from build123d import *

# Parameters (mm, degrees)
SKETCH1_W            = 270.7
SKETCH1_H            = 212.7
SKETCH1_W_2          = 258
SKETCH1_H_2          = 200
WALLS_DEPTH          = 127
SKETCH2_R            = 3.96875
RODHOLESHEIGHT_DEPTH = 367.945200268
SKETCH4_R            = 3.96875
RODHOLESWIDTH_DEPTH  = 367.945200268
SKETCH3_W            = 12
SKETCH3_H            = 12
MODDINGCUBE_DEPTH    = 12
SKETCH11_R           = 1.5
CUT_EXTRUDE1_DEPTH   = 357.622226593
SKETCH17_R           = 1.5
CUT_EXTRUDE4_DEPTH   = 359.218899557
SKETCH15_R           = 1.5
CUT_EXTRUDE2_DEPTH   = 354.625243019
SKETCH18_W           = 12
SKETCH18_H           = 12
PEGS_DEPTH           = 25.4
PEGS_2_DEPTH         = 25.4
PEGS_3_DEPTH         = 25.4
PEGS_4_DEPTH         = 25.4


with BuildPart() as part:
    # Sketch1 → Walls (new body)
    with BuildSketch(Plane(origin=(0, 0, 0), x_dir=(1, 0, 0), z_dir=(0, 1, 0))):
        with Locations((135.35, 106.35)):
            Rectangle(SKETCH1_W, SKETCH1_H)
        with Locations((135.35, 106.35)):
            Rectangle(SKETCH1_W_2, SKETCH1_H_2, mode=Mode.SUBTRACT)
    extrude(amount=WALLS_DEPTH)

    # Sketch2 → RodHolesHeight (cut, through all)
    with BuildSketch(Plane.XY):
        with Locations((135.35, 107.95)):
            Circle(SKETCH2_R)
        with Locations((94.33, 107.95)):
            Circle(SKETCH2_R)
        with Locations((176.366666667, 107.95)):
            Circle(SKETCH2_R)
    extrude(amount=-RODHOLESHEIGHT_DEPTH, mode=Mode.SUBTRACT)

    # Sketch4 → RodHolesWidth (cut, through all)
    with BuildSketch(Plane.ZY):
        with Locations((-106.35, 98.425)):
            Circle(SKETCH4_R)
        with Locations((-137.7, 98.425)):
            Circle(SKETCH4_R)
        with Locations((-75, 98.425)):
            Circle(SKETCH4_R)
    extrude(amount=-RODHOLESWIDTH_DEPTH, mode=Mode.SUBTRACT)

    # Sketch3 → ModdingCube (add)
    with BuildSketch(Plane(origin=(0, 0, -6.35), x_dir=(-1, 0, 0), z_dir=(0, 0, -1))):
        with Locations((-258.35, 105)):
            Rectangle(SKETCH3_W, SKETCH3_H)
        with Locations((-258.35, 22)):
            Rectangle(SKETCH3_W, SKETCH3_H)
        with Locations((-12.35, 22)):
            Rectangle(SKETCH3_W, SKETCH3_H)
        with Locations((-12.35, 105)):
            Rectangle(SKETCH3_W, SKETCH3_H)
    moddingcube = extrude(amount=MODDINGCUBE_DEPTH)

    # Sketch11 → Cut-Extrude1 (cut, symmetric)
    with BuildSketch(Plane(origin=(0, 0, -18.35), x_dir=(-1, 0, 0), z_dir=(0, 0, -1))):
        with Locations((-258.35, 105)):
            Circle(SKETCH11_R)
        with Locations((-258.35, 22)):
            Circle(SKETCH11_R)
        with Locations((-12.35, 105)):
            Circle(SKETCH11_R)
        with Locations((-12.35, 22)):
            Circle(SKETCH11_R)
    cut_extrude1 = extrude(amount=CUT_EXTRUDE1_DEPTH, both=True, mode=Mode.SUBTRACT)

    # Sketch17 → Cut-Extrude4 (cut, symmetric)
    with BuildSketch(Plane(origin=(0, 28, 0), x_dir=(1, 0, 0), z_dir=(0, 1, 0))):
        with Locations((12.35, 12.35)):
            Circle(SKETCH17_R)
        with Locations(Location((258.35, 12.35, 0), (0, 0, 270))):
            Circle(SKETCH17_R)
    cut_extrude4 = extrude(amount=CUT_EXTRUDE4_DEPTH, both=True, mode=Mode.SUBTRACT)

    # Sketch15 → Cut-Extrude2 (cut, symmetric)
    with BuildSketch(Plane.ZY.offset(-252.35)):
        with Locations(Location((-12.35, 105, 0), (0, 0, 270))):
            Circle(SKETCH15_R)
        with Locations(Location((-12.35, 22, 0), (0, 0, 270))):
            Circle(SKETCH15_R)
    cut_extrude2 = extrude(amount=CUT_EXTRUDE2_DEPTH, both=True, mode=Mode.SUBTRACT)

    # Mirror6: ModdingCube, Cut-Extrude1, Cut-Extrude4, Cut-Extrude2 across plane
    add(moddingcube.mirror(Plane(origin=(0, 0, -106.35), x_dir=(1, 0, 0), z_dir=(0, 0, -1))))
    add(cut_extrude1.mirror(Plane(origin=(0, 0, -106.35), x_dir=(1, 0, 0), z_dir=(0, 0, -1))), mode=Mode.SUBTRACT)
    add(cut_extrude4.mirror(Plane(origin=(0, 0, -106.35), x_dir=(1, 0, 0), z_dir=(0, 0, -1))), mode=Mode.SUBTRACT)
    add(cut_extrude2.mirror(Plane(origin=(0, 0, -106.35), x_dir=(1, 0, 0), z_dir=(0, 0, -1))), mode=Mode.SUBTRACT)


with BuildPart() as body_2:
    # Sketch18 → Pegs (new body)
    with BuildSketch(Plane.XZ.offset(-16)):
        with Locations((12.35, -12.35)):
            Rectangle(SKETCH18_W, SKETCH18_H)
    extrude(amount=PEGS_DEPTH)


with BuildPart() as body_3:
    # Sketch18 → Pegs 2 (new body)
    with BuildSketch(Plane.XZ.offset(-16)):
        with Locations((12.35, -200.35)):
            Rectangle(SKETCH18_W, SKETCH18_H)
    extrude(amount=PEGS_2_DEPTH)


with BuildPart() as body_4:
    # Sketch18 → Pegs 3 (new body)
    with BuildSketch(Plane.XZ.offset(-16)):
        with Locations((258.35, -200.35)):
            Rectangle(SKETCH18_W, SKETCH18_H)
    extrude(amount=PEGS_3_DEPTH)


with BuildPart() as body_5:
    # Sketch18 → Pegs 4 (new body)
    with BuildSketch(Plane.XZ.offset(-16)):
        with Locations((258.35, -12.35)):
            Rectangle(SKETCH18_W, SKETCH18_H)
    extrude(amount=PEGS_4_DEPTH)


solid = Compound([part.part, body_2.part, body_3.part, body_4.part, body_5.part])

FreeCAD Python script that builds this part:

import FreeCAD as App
import Part
import Sketcher
from FreeCAD import Vector


def add_polygon(sketch, points):
    """Adds a closed chain of lines whose ends are joined by coincident constraints."""
    first, n = sketch.GeometryCount, len(points)
    for a, b in zip(points, points[1:] + points[:1]):
        sketch.addGeometry(Part.LineSegment(App.Vector(*a, 0), App.Vector(*b, 0)), False)
    for i in range(n):
        sketch.addConstraint(Sketcher.Constraint("Coincident", first + i, 2, first + (i + 1) % n, 1))

doc = App.newDocument("Part")
body = doc.addObject("PartDesign::Body", "Body")

sketch1 = doc.addObject("Sketcher::SketchObject", "Sketch")
body.addObject(sketch1)
sketch1.AttachmentSupport = (doc.XZ_Plane, [""])
sketch1.MapMode = "FlatFace"
add_polygon(sketch1, [(0, -213), (0, 0), (271, 0), (271, -213)])
add_polygon(sketch1, [(264, -6), (6, -6), (6, -206), (264, -206)])
sketch1.addConstraint(Sketcher.Constraint("Vertical", 0))
sketch1.addConstraint(Sketcher.Constraint("Horizontal", 1))
sketch1.addConstraint(Sketcher.Constraint("Vertical", 2))
sketch1.addConstraint(Sketcher.Constraint("Horizontal", 3))
sketch1.addConstraint(Sketcher.Constraint("Horizontal", 4))
sketch1.addConstraint(Sketcher.Constraint("Vertical", 5))
sketch1.addConstraint(Sketcher.Constraint("Horizontal", 6))
sketch1.addConstraint(Sketcher.Constraint("Vertical", 7))
sketch1.addConstraint(Sketcher.Constraint("Coincident", 0, 2, -1, 1))
sketch1.addConstraint(Sketcher.Constraint("DistanceX", 4, 2, 4, 1, 258.0))
sketch1.addConstraint(Sketcher.Constraint("DistanceY", 5, 2, 5, 1, 200.0))
sketch1.addConstraint(Sketcher.Constraint("DistanceX", 1, 1, 1, 2, 270.7))
sketch1.addConstraint(Sketcher.Constraint("DistanceY", 0, 1, 0, 2, 212.7))
sketch1.addConstraint(Sketcher.Constraint("DistanceX", -1, 1, 4, 2, 6.35))
sketch1.addConstraint(Sketcher.Constraint("DistanceY", 4, 2, -1, 1, 6.35))
pad1 = doc.addObject("PartDesign::Pad", "Pad")
body.addObject(pad1)
pad1.Profile = sketch1
pad1.Length = 127
pad1.Reversed = True

sketch2 = doc.addObject("Sketcher::SketchObject", "Sketch001")
body.addObject(sketch2)
sketch2.AttachmentSupport = (doc.XY_Plane, [""])
sketch2.MapMode = "FlatFace"
sketch2.addGeometry(Part.Circle(Vector(135.3, 108, 0), Vector(0, 0, 1), 4), False)
sketch2.addGeometry(Part.Circle(Vector(94.3, 108, 0), Vector(0, 0, 1), 4), False)
sketch2.addGeometry(Part.Circle(Vector(176.4, 108, 0), Vector(0, 0, 1), 4), False)
sketch2.addConstraint(Sketcher.Constraint("Equal", 0, 1))
sketch2.addConstraint(Sketcher.Constraint("Equal", 1, 2))
sketch2.addConstraint(Sketcher.Constraint("Horizontal", 0, 3, 1, 3))
sketch2.addConstraint(Sketcher.Constraint("Horizontal", 1, 3, 2, 3))
sketch2.addConstraint(Sketcher.Constraint("Diameter", 0, 7.9375))
sketch2.addConstraint(Sketcher.Constraint("DistanceX", -1, 1, 0, 3, 135.35))
sketch2.addConstraint(Sketcher.Constraint("DistanceY", -1, 1, 0, 3, 107.95))
sketch2.addConstraint(Sketcher.Constraint("DistanceX", -1, 1, 1, 3, 94.33))
sketch2.addConstraint(Sketcher.Constraint("DistanceX", -1, 1, 2, 3, 176.366667))
pocket1 = doc.addObject("PartDesign::Pocket", "Pocket")
body.addObject(pocket1)
pocket1.Profile = sketch2
pocket1.Type = "ThroughAll"

sketch3 = doc.addObject("Sketcher::SketchObject", "Sketch002")
body.addObject(sketch3)
sketch3.AttachmentSupport = (doc.YZ_Plane, [""])
sketch3.MapMode = "FlatFace"
sketch3.addGeometry(Part.Circle(Vector(98.4, -106.3, 0), Vector(0, 0, 1), 4), False)
sketch3.addGeometry(Part.Circle(Vector(98.4, -137.7, 0), Vector(0, 0, 1), 4), False)
sketch3.addGeometry(Part.Circle(Vector(98.4, -75, 0), Vector(0, 0, 1), 4), False)
sketch3.addConstraint(Sketcher.Constraint("Equal", 0, 1))
sketch3.addConstraint(Sketcher.Constraint("Equal", 1, 2))
sketch3.addConstraint(Sketcher.Constraint("Vertical", 0, 3, 1, 3))
sketch3.addConstraint(Sketcher.Constraint("Vertical", 1, 3, 2, 3))
sketch3.addConstraint(Sketcher.Constraint("DistanceY", 2, 3, -1, 1, 75.0))
sketch3.addConstraint(Sketcher.Constraint("Diameter", 0, 7.9375))
sketch3.addConstraint(Sketcher.Constraint("DistanceY", 1, 3, -1, 1, 137.7))
sketch3.addConstraint(Sketcher.Constraint("DistanceY", 0, 3, -1, 1, 106.35))
sketch3.addConstraint(Sketcher.Constraint("DistanceX", -1, 1, 0, 3, 98.425))
pocket2 = doc.addObject("PartDesign::Pocket", "Pocket001")
body.addObject(pocket2)
pocket2.Profile = sketch3
pocket2.Type = "ThroughAll"
pocket2.Reversed = True

sketch4 = doc.addObject("Sketcher::SketchObject", "Sketch003")
body.addObject(sketch4)
sketch4.AttachmentSupport = (doc.XY_Plane, [""])
sketch4.MapMode = "FlatFace"
sketch4.AttachmentOffset = App.Placement(Vector(0, 0, -6.35), App.Rotation())
add_polygon(sketch4, [(264, 111), (264, 99), (252, 99), (252, 111)])
add_polygon(sketch4, [(264, 28), (264, 16), (252, 16), (252, 28)])
add_polygon(sketch4, [(18, 28), (18, 16), (6, 16), (6, 28)])
add_polygon(sketch4, [(18, 111), (18, 99), (6, 99), (6, 111)])
sketch4.addConstraint(Sketcher.Constraint("Vertical", 0))
sketch4.addConstraint(Sketcher.Constraint("Horizontal", 1))
sketch4.addConstraint(Sketcher.Constraint("Vertical", 2))
sketch4.addConstraint(Sketcher.Constraint("Horizontal", 3))
sketch4.addConstraint(Sketcher.Constraint("Vertical", 4))
sketch4.addConstraint(Sketcher.Constraint("Horizontal", 5))
sketch4.addConstraint(Sketcher.Constraint("Vertical", 6))
sketch4.addConstraint(Sketcher.Constraint("Horizontal", 7))
sketch4.addConstraint(Sketcher.Constraint("Vertical", 8))
sketch4.addConstraint(Sketcher.Constraint("Horizontal", 9))
sketch4.addConstraint(Sketcher.Constraint("Vertical", 10))
sketch4.addConstraint(Sketcher.Constraint("Horizontal", 11))
sketch4.addConstraint(Sketcher.Constraint("Vertical", 12))
sketch4.addConstraint(Sketcher.Constraint("Horizontal", 13))
sketch4.addConstraint(Sketcher.Constraint("Vertical", 14))
sketch4.addConstraint(Sketcher.Constraint("Horizontal", 15))
sketch4.addConstraint(Sketcher.Constraint("Horizontal", 5, 2, 8, 2))
sketch4.addConstraint(Sketcher.Constraint("Horizontal", 7, 2, 10, 2))
sketch4.addConstraint(Sketcher.Constraint("Horizontal", 1, 2, 12, 2))
sketch4.addConstraint(Sketcher.Constraint("Horizontal", 3, 2, 14, 2))
sketch4.addConstraint(Sketcher.Constraint("Vertical", 3, 2, 4, 2))
sketch4.addConstraint(Sketcher.Constraint("Vertical", 2, 2, 5, 2))
sketch4.addConstraint(Sketcher.Constraint("Vertical", 11, 2, 12, 2))
sketch4.addConstraint(Sketcher.Constraint("Vertical", 10, 2, 13, 2))
sketch4.addConstraint(Sketcher.Constraint("Equal", 7, 9))
sketch4.addConstraint(Sketcher.Constraint("Equal", 15, 0))
sketch4.addConstraint(Sketcher.Constraint("Equal", 2, 4))
sketch4.addConstraint(Sketcher.Constraint("DistanceX", 1, 2, 1, 1, 12.0))
sketch4.addConstraint(Sketcher.Constraint("DistanceY", -1, 1, 0, 2, 99.0))
sketch4.addConstraint(Sketcher.Constraint("DistanceY", -1, 1, 4, 2, 16.0))
sketch4.addConstraint(Sketcher.Constraint("DistanceX", 8, 2, 5, 2, 234.0))
sketch4.addConstraint(Sketcher.Constraint("DistanceX", -1, 1, 0, 2, 264.35))
pad2 = doc.addObject("PartDesign::Pad", "Pad001")
body.addObject(pad2)
pad2.Profile = sketch4
pad2.Length = 12
pad2.Reversed = True

sketch5 = doc.addObject("Sketcher::SketchObject", "Sketch004")
body.addObject(sketch5)
sketch5.AttachmentSupport = (doc.XY_Plane, [""])
sketch5.MapMode = "FlatFace"
sketch5.AttachmentOffset = App.Placement(Vector(0, 0, -18.35), App.Rotation())
sketch5.addGeometry(Part.Circle(Vector(258.4, 105, 0), Vector(0, 0, 1), 1.5), False)
sketch5.addGeometry(Part.Circle(Vector(258.4, 22, 0), Vector(0, 0, 1), 1.5), False)
sketch5.addGeometry(Part.Circle(Vector(12.3, 105, 0), Vector(0, 0, 1), 1.5), False)
sketch5.addGeometry(Part.Circle(Vector(12.3, 22, 0), Vector(0, 0, 1), 1.5), False)
sketch5.addConstraint(Sketcher.Constraint("Equal", 0, 1))
sketch5.addConstraint(Sketcher.Constraint("Equal", 1, 2))
sketch5.addConstraint(Sketcher.Constraint("Equal", 2, 3))
sketch5.addConstraint(Sketcher.Constraint("Horizontal", 0, 3, 2, 3))
sketch5.addConstraint(Sketcher.Constraint("Horizontal", 1, 3, 3, 3))
sketch5.addConstraint(Sketcher.Constraint("Vertical", 0, 3, 1, 3))
sketch5.addConstraint(Sketcher.Constraint("Vertical", 2, 3, 3, 3))
sketch5.addConstraint(Sketcher.Constraint("Diameter", 0, 3.0))
sketch5.addConstraint(Sketcher.Constraint("DistanceY", -1, 1, 0, 3, 105.0))
sketch5.addConstraint(Sketcher.Constraint("DistanceY", -1, 1, 1, 3, 22.0))
sketch5.addConstraint(Sketcher.Constraint("DistanceX", 2, 3, 0, 3, 246.0))
sketch5.addConstraint(Sketcher.Constraint("DistanceX", -1, 1, 0, 3, 258.35))
pocket3 = doc.addObject("PartDesign::Pocket", "Pocket002")
body.addObject(pocket3)
pocket3.Profile = sketch5
pocket3.Length = 715.244453
pocket3.Midplane = True

sketch6 = doc.addObject("Sketcher::SketchObject", "Sketch005")
body.addObject(sketch6)
sketch6.AttachmentSupport = (doc.XZ_Plane, [""])
sketch6.MapMode = "FlatFace"
sketch6.AttachmentOffset = App.Placement(Vector(0, 0, -28), App.Rotation())
sketch6.addGeometry(Part.Circle(Vector(12.3, -12.3, 0), Vector(0, 0, 1), 1.5), False)
sketch6.addGeometry(Part.Circle(Vector(258.4, -12.3, 0), Vector(0, 0, 1), 1.5), False)
sketch6.addConstraint(Sketcher.Constraint("Equal", 0, 1))
sketch6.addConstraint(Sketcher.Constraint("Horizontal", 0, 3, 1, 3))
sketch6.addConstraint(Sketcher.Constraint("Diameter", 0, 3.0))
sketch6.addConstraint(Sketcher.Constraint("DistanceX", 0, 3, 1, 3, 246.0))
sketch6.addConstraint(Sketcher.Constraint("DistanceX", -1, 1, 0, 3, 12.35))
sketch6.addConstraint(Sketcher.Constraint("DistanceY", 0, 3, -1, 1, 12.35))
pocket4 = doc.addObject("PartDesign::Pocket", "Pocket003")
body.addObject(pocket4)
pocket4.Profile = sketch6
pocket4.Length = 718.437799
pocket4.Midplane = True

sketch7 = doc.addObject("Sketcher::SketchObject", "Sketch006")
body.addObject(sketch7)
sketch7.AttachmentSupport = (doc.YZ_Plane, [""])
sketch7.MapMode = "FlatFace"
sketch7.AttachmentOffset = App.Placement(Vector(0, 0, 252.35), App.Rotation())
sketch7.addGeometry(Part.Circle(Vector(105, -12.3, 0), Vector(0, 0, 1), 1.5), False)
sketch7.addGeometry(Part.Circle(Vector(22, -12.3, 0), Vector(0, 0, 1), 1.5), False)
sketch7.addConstraint(Sketcher.Constraint("Equal", 0, 1))
sketch7.addConstraint(Sketcher.Constraint("Horizontal", 0, 3, 1, 3))
sketch7.addConstraint(Sketcher.Constraint("Diameter", 0, 3.0))
sketch7.addConstraint(Sketcher.Constraint("DistanceX", -1, 1, 0, 3, 105.0))
sketch7.addConstraint(Sketcher.Constraint("DistanceX", -1, 1, 1, 3, 22.0))
sketch7.addConstraint(Sketcher.Constraint("DistanceY", 0, 3, -1, 1, 12.35))
pocket5 = doc.addObject("PartDesign::Pocket", "Pocket004")
body.addObject(pocket5)
pocket5.Profile = sketch7
pocket5.Length = 709.250486
pocket5.Midplane = True
doc.recompute()

datumplane = doc.addObject("PartDesign::Plane", "DatumPlane")
body.addObject(datumplane)
datumplane.AttachmentSupport = (doc.XY_Plane, [""])
datumplane.MapMode = "FlatFace"
datumplane.AttachmentOffset = App.Placement(Vector(0, 0, -106.35), App.Rotation())
mirrored = doc.addObject("PartDesign::Mirrored", "Mirrored")
body.addObject(mirrored)
mirrored.Originals = [pad2, pocket3, pocket4, pocket5]
mirrored.MirrorPlane = (datumplane, [""])
body.Tip = mirrored
body2 = doc.addObject("PartDesign::Body", "Body001")

sketch8 = doc.addObject("Sketcher::SketchObject", "Sketch007")
body2.addObject(sketch8)
sketch8.AttachmentSupport = (doc.getObject("XZ_Plane001"), [""])
sketch8.MapMode = "FlatFace"
sketch8.AttachmentOffset = App.Placement(Vector(0, 0, -16), App.Rotation())
add_polygon(sketch8, [(6, -6), (6, -18), (18, -18), (18, -6)])
sketch8.addConstraint(Sketcher.Constraint("Vertical", 0))
sketch8.addConstraint(Sketcher.Constraint("Horizontal", 1))
sketch8.addConstraint(Sketcher.Constraint("Vertical", 2))
sketch8.addConstraint(Sketcher.Constraint("Horizontal", 3))
sketch8.addConstraint(Sketcher.Constraint("Equal", 3, 0))
sketch8.addConstraint(Sketcher.Constraint("DistanceX", 1, 1, 1, 2, 12.0))
sketch8.addConstraint(Sketcher.Constraint("DistanceX", -1, 1, 0, 2, 6.35))
sketch8.addConstraint(Sketcher.Constraint("DistanceY", 0, 2, -1, 1, 18.35))
pad3 = doc.addObject("PartDesign::Pad", "Pad002")
body2.addObject(pad3)
pad3.Profile = sketch8
pad3.Length = 25.4
body3 = doc.addObject("PartDesign::Body", "Body002")

sketch9 = doc.addObject("Sketcher::SketchObject", "Sketch008")
body3.addObject(sketch9)
sketch9.AttachmentSupport = (doc.getObject("XZ_Plane002"), [""])
sketch9.MapMode = "FlatFace"
sketch9.AttachmentOffset = App.Placement(Vector(0, 0, -16), App.Rotation())
add_polygon(sketch9, [(6, -194), (6, -206), (18, -206), (18, -194)])
sketch9.addConstraint(Sketcher.Constraint("Vertical", 0))
sketch9.addConstraint(Sketcher.Constraint("Horizontal", 1))
sketch9.addConstraint(Sketcher.Constraint("Vertical", 2))
sketch9.addConstraint(Sketcher.Constraint("Horizontal", 3))
sketch9.addConstraint(Sketcher.Constraint("Equal", 3, 0))
sketch9.addConstraint(Sketcher.Constraint("DistanceX", 1, 1, 1, 2, 12.0))
sketch9.addConstraint(Sketcher.Constraint("DistanceX", -1, 1, 0, 2, 6.35))
sketch9.addConstraint(Sketcher.Constraint("DistanceY", 0, 2, -1, 1, 206.35))
pad4 = doc.addObject("PartDesign::Pad", "Pad003")
body3.addObject(pad4)
pad4.Profile = sketch9
pad4.Length = 25.4
body4 = doc.addObject("PartDesign::Body", "Body003")

sketch10 = doc.addObject("Sketcher::SketchObject", "Sketch009")
body4.addObject(sketch10)
sketch10.AttachmentSupport = (doc.getObject("XZ_Plane003"), [""])
sketch10.MapMode = "FlatFace"
sketch10.AttachmentOffset = App.Placement(Vector(0, 0, -16), App.Rotation())
add_polygon(sketch10, [(252, -194), (252, -206), (264, -206), (264, -194)])
sketch10.addConstraint(Sketcher.Constraint("Vertical", 0))
sketch10.addConstraint(Sketcher.Constraint("Horizontal", 1))
sketch10.addConstraint(Sketcher.Constraint("Vertical", 2))
sketch10.addConstraint(Sketcher.Constraint("Horizontal", 3))
sketch10.addConstraint(Sketcher.Constraint("Equal", 3, 0))
sketch10.addConstraint(Sketcher.Constraint("DistanceX", 1, 1, 1, 2, 12.0))
sketch10.addConstraint(Sketcher.Constraint("DistanceX", -1, 1, 0, 2, 252.35))
sketch10.addConstraint(Sketcher.Constraint("DistanceY", 0, 2, -1, 1, 206.35))
pad5 = doc.addObject("PartDesign::Pad", "Pad004")
body4.addObject(pad5)
pad5.Profile = sketch10
pad5.Length = 25.4
body5 = doc.addObject("PartDesign::Body", "Body004")

sketch11 = doc.addObject("Sketcher::SketchObject", "Sketch010")
body5.addObject(sketch11)
sketch11.AttachmentSupport = (doc.getObject("XZ_Plane004"), [""])
sketch11.MapMode = "FlatFace"
sketch11.AttachmentOffset = App.Placement(Vector(0, 0, -16), App.Rotation())
add_polygon(sketch11, [(252, -6), (252, -18), (264, -18), (264, -6)])
sketch11.addConstraint(Sketcher.Constraint("Vertical", 0))
sketch11.addConstraint(Sketcher.Constraint("Horizontal", 1))
sketch11.addConstraint(Sketcher.Constraint("Vertical", 2))
sketch11.addConstraint(Sketcher.Constraint("Horizontal", 3))
sketch11.addConstraint(Sketcher.Constraint("Equal", 3, 0))
sketch11.addConstraint(Sketcher.Constraint("DistanceX", 1, 1, 1, 2, 12.0))
sketch11.addConstraint(Sketcher.Constraint("DistanceX", -1, 1, 0, 2, 252.35))
sketch11.addConstraint(Sketcher.Constraint("DistanceY", 0, 2, -1, 1, 18.35))
pad6 = doc.addObject("PartDesign::Pad", "Pad005")
body5.addObject(pad6)
pad6.Profile = sketch11
pad6.Length = 25.4

doc.recompute()
